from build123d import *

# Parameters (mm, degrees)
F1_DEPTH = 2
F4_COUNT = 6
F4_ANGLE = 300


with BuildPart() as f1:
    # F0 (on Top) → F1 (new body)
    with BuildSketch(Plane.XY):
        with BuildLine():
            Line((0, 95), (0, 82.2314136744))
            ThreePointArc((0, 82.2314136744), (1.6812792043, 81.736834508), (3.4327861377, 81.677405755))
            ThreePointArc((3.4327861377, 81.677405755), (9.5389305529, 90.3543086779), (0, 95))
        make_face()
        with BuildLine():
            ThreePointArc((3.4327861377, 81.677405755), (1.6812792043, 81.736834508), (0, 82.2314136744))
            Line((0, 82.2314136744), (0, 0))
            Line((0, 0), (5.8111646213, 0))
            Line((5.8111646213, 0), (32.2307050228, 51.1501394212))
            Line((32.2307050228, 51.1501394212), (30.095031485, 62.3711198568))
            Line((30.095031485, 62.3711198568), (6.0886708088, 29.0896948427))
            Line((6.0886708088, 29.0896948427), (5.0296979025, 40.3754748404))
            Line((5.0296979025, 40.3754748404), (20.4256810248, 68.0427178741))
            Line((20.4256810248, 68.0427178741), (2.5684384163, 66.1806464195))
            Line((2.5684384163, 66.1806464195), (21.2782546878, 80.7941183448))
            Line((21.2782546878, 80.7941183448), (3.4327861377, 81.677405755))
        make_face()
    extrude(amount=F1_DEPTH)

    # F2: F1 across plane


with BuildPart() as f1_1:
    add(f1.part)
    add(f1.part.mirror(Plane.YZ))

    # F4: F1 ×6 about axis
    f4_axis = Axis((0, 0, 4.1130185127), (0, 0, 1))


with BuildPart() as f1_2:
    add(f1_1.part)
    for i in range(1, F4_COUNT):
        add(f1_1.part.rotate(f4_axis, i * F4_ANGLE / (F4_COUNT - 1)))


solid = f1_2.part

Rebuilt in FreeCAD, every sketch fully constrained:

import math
import FreeCAD as App
import Part
import Sketcher
from FreeCAD import Vector
Q = App.Units.Quantity

doc = App.newDocument("Part")
body = doc.addObject("PartDesign::Body", "Body")

sketch1 = body.newObject("Sketcher::SketchObject", "Sketch")
sketch1.AttachmentSupport = (doc.getObject("XY_Plane"), [""])
sketch1.MapMode = "FlatFace"
sketch1.addGeometry([
    Part.LineSegment(Vector(0, 95, 0), Vector(0, 0, 0)),
    Part.LineSegment(Vector(0, 0, 0), Vector(5.811165, 0, 0)),
    Part.LineSegment(Vector(5.811165, 0, 0), Vector(32.230705, 51.150139, 0)),
    Part.LineSegment(Vector(32.230705, 51.150139, 0), Vector(30.095031, 62.37112, 0)),
    Part.LineSegment(Vector(30.095031, 62.37112, 0), Vector(6.088671, 29.089695, 0)),
    Part.LineSegment(Vector(6.088671, 29.089695, 0), Vector(5.029698, 40.375475, 0)),
    Part.LineSegment(Vector(5.029698, 40.375475, 0), Vector(20.425681, 68.042718, 0)),
    Part.LineSegment(Vector(20.425681, 68.042718, 0), Vector(2.568438, 66.180646, 0)),
    Part.LineSegment(Vector(2.568438, 66.180646, 0), Vector(21.278255, 80.794118, 0)),
    Part.LineSegment(Vector(21.278255, 80.794118, 0), Vector(3.432786, 81.677406, 0)),
    Part.ArcOfCircle(Part.Circle(Vector(2.791442, 88.615707, 0), Vector(0, 0, 1), 6.96788), math.radians(-84.718849), math.radians(113.616671)),
], False)
sketch1.addConstraint([
    Sketcher.Constraint("Coincident", 0, 2, 1, 1),
    Sketcher.Constraint("Coincident", 1, 2, 2, 1),
    Sketcher.Constraint("Coincident", 2, 2, 3, 1),
    Sketcher.Constraint("Coincident", 3, 2, 4, 1),
    Sketcher.Constraint("Coincident", 4, 2, 5, 1),
    Sketcher.Constraint("Coincident", 5, 2, 6, 1),
    Sketcher.Constraint("Coincident", 6, 2, 7, 1),
    Sketcher.Constraint("Coincident", 7, 2, 8, 1),
    Sketcher.Constraint("Coincident", 8, 2, 9, 1),
    Sketcher.Constraint("Coincident", 9, 2, 10, 1),
    Sketcher.Constraint("Coincident", 10, 2, 0, 1),
    Sketcher.Constraint("Vertical", 0),
    Sketcher.Constraint("Horizontal", 1),
    Sketcher.Constraint("Coincident", 0, 2, -1, 1),
    Sketcher.Constraint("DistanceY", 0, 2, 0, 1, Q("95 mm")),
    Sketcher.Constraint("Radius", 10, Q("6.96788 mm")),
    Sketcher.Constraint("DistanceY", 3, 2, 8, 2, Q("18.422998 mm")),
    Sketcher.Constraint("DistanceY", 3, 2, 6, 2, Q("5.671598 mm")),
    Sketcher.Constraint("DistanceY", 9, 2, 10, 3, Q("6.938301 mm")),
    Sketcher.Constraint("Distance", 2, Q("57.570208 mm")),
    Sketcher.Constraint("Distance", 6, Q("31.66248 mm")),
    Sketcher.Constraint("Distance", 8, Q("23.740488 mm")),
    Sketcher.Constraint("DistanceX", 1, 1, 1, 2, Q("5.811165 mm")),
    Sketcher.Constraint("DistanceX", -1, 1, 10, 3, Q("2.791442 mm")),
    Sketcher.Constraint("DistanceY", -1, 1, 2, 2, Q("51.150139 mm")),
    Sketcher.Constraint("DistanceX", -1, 1, 3, 2, Q("30.095031 mm")),
    Sketcher.Constraint("DistanceY", -1, 1, 3, 2, Q("62.37112 mm")),
    Sketcher.Constraint("DistanceX", -1, 1, 4, 2, Q("6.088671 mm")),
    Sketcher.Constraint("DistanceX", -1, 1, 6, 2, Q("20.425681 mm")),
    Sketcher.Constraint("DistanceX", -1, 1, 7, 2, Q("2.568438 mm")),
    Sketcher.Constraint("DistanceY", 4, 2, 10, 3, Q("59.526012 mm")),
    Sketcher.Constraint("DistanceY", 4, 2, 5, 2, Q("11.28578 mm")),
    Sketcher.Constraint("DistanceY", 7, 2, 6, 2, Q("1.862071 mm")),
])
pad1 = body.newObject("PartDesign::Pad", "Pad")
pad1.Profile = sketch1
pad1.Length = 2
body2 = doc.addObject("PartDesign::Body", "Body001")
doc.recompute()

body2.BaseFeature = body
doc.recompute()

mirroring = doc.addObject("Part::Mirroring", "Mirroring")
mirroring.Source = body
mirroring.Base = Vector(0, 0, 0)
mirroring.Normal = Vector(1, 0, 0)
body3 = doc.addObject("PartDesign::Body", "Body002")
body3.BaseFeature = mirroring
boolean = body2.newObject("PartDesign::Boolean", "Boolean")
boolean.Type = "Fuse"
boolean.addObjects([body3])
doc.recompute()
body4 = doc.addObject("PartDesign::Body", "Body003")
doc.recompute()

body4.BaseFeature = body2
doc.recompute()

body5 = doc.addObject("PartDesign::Body", "Body004")
body5.BaseFeature = body2
body5.Placement = App.Placement(Vector(0, 0, 0), App.Rotation(Vector(0, 0, 1), 60))
boolean2 = body4.newObject("PartDesign::Boolean", "Boolean001")
boolean2.Type = "Fuse"
boolean2.addObjects([body5])
doc.recompute()

body6 = doc.addObject("PartDesign::Body", "Body005")
body6.BaseFeature = body2
body6.Placement = App.Placement(Vector(0, 0, 0), App.Rotation(Vector(0, 0, 1), 120))
boolean3 = body4.newObject("PartDesign::Boolean", "Boolean002")
boolean3.Type = "Fuse"
boolean3.addObjects([body6])
doc.recompute()

body7 = doc.addObject("PartDesign::Body", "Body006")
body7.BaseFeature = body2
body7.Placement = App.Placement(Vector(0, 0, 0), App.Rotation(Vector(0, 0, 1), 180))
boolean4 = body4.newObject("PartDesign::Boolean", "Boolean003")
boolean4.Type = "Fuse"
boolean4.addObjects([body7])
doc.recompute()

body8 = doc.addObject("PartDesign::Body", "Body007")
body8.BaseFeature = body2
body8.Placement = App.Placement(Vector(0, 0, 0), App.Rotation(Vector(0, 0, 1), 240))
boolean5 = body4.newObject("PartDesign::Boolean", "Boolean004")
boolean5.Type = "Fuse"
boolean5.addObjects([body8])
doc.recompute()

body2.Placement = App.Placement(Vector(0, 0, 0), App.Rotation(Vector(0, 0, 1), 300))
boolean6 = body4.newObject("PartDesign::Boolean", "Boolean005")
boolean6.Type = "Fuse"
boolean6.addObjects([body2])
mirroring.Visibility = False

doc.recompute()
